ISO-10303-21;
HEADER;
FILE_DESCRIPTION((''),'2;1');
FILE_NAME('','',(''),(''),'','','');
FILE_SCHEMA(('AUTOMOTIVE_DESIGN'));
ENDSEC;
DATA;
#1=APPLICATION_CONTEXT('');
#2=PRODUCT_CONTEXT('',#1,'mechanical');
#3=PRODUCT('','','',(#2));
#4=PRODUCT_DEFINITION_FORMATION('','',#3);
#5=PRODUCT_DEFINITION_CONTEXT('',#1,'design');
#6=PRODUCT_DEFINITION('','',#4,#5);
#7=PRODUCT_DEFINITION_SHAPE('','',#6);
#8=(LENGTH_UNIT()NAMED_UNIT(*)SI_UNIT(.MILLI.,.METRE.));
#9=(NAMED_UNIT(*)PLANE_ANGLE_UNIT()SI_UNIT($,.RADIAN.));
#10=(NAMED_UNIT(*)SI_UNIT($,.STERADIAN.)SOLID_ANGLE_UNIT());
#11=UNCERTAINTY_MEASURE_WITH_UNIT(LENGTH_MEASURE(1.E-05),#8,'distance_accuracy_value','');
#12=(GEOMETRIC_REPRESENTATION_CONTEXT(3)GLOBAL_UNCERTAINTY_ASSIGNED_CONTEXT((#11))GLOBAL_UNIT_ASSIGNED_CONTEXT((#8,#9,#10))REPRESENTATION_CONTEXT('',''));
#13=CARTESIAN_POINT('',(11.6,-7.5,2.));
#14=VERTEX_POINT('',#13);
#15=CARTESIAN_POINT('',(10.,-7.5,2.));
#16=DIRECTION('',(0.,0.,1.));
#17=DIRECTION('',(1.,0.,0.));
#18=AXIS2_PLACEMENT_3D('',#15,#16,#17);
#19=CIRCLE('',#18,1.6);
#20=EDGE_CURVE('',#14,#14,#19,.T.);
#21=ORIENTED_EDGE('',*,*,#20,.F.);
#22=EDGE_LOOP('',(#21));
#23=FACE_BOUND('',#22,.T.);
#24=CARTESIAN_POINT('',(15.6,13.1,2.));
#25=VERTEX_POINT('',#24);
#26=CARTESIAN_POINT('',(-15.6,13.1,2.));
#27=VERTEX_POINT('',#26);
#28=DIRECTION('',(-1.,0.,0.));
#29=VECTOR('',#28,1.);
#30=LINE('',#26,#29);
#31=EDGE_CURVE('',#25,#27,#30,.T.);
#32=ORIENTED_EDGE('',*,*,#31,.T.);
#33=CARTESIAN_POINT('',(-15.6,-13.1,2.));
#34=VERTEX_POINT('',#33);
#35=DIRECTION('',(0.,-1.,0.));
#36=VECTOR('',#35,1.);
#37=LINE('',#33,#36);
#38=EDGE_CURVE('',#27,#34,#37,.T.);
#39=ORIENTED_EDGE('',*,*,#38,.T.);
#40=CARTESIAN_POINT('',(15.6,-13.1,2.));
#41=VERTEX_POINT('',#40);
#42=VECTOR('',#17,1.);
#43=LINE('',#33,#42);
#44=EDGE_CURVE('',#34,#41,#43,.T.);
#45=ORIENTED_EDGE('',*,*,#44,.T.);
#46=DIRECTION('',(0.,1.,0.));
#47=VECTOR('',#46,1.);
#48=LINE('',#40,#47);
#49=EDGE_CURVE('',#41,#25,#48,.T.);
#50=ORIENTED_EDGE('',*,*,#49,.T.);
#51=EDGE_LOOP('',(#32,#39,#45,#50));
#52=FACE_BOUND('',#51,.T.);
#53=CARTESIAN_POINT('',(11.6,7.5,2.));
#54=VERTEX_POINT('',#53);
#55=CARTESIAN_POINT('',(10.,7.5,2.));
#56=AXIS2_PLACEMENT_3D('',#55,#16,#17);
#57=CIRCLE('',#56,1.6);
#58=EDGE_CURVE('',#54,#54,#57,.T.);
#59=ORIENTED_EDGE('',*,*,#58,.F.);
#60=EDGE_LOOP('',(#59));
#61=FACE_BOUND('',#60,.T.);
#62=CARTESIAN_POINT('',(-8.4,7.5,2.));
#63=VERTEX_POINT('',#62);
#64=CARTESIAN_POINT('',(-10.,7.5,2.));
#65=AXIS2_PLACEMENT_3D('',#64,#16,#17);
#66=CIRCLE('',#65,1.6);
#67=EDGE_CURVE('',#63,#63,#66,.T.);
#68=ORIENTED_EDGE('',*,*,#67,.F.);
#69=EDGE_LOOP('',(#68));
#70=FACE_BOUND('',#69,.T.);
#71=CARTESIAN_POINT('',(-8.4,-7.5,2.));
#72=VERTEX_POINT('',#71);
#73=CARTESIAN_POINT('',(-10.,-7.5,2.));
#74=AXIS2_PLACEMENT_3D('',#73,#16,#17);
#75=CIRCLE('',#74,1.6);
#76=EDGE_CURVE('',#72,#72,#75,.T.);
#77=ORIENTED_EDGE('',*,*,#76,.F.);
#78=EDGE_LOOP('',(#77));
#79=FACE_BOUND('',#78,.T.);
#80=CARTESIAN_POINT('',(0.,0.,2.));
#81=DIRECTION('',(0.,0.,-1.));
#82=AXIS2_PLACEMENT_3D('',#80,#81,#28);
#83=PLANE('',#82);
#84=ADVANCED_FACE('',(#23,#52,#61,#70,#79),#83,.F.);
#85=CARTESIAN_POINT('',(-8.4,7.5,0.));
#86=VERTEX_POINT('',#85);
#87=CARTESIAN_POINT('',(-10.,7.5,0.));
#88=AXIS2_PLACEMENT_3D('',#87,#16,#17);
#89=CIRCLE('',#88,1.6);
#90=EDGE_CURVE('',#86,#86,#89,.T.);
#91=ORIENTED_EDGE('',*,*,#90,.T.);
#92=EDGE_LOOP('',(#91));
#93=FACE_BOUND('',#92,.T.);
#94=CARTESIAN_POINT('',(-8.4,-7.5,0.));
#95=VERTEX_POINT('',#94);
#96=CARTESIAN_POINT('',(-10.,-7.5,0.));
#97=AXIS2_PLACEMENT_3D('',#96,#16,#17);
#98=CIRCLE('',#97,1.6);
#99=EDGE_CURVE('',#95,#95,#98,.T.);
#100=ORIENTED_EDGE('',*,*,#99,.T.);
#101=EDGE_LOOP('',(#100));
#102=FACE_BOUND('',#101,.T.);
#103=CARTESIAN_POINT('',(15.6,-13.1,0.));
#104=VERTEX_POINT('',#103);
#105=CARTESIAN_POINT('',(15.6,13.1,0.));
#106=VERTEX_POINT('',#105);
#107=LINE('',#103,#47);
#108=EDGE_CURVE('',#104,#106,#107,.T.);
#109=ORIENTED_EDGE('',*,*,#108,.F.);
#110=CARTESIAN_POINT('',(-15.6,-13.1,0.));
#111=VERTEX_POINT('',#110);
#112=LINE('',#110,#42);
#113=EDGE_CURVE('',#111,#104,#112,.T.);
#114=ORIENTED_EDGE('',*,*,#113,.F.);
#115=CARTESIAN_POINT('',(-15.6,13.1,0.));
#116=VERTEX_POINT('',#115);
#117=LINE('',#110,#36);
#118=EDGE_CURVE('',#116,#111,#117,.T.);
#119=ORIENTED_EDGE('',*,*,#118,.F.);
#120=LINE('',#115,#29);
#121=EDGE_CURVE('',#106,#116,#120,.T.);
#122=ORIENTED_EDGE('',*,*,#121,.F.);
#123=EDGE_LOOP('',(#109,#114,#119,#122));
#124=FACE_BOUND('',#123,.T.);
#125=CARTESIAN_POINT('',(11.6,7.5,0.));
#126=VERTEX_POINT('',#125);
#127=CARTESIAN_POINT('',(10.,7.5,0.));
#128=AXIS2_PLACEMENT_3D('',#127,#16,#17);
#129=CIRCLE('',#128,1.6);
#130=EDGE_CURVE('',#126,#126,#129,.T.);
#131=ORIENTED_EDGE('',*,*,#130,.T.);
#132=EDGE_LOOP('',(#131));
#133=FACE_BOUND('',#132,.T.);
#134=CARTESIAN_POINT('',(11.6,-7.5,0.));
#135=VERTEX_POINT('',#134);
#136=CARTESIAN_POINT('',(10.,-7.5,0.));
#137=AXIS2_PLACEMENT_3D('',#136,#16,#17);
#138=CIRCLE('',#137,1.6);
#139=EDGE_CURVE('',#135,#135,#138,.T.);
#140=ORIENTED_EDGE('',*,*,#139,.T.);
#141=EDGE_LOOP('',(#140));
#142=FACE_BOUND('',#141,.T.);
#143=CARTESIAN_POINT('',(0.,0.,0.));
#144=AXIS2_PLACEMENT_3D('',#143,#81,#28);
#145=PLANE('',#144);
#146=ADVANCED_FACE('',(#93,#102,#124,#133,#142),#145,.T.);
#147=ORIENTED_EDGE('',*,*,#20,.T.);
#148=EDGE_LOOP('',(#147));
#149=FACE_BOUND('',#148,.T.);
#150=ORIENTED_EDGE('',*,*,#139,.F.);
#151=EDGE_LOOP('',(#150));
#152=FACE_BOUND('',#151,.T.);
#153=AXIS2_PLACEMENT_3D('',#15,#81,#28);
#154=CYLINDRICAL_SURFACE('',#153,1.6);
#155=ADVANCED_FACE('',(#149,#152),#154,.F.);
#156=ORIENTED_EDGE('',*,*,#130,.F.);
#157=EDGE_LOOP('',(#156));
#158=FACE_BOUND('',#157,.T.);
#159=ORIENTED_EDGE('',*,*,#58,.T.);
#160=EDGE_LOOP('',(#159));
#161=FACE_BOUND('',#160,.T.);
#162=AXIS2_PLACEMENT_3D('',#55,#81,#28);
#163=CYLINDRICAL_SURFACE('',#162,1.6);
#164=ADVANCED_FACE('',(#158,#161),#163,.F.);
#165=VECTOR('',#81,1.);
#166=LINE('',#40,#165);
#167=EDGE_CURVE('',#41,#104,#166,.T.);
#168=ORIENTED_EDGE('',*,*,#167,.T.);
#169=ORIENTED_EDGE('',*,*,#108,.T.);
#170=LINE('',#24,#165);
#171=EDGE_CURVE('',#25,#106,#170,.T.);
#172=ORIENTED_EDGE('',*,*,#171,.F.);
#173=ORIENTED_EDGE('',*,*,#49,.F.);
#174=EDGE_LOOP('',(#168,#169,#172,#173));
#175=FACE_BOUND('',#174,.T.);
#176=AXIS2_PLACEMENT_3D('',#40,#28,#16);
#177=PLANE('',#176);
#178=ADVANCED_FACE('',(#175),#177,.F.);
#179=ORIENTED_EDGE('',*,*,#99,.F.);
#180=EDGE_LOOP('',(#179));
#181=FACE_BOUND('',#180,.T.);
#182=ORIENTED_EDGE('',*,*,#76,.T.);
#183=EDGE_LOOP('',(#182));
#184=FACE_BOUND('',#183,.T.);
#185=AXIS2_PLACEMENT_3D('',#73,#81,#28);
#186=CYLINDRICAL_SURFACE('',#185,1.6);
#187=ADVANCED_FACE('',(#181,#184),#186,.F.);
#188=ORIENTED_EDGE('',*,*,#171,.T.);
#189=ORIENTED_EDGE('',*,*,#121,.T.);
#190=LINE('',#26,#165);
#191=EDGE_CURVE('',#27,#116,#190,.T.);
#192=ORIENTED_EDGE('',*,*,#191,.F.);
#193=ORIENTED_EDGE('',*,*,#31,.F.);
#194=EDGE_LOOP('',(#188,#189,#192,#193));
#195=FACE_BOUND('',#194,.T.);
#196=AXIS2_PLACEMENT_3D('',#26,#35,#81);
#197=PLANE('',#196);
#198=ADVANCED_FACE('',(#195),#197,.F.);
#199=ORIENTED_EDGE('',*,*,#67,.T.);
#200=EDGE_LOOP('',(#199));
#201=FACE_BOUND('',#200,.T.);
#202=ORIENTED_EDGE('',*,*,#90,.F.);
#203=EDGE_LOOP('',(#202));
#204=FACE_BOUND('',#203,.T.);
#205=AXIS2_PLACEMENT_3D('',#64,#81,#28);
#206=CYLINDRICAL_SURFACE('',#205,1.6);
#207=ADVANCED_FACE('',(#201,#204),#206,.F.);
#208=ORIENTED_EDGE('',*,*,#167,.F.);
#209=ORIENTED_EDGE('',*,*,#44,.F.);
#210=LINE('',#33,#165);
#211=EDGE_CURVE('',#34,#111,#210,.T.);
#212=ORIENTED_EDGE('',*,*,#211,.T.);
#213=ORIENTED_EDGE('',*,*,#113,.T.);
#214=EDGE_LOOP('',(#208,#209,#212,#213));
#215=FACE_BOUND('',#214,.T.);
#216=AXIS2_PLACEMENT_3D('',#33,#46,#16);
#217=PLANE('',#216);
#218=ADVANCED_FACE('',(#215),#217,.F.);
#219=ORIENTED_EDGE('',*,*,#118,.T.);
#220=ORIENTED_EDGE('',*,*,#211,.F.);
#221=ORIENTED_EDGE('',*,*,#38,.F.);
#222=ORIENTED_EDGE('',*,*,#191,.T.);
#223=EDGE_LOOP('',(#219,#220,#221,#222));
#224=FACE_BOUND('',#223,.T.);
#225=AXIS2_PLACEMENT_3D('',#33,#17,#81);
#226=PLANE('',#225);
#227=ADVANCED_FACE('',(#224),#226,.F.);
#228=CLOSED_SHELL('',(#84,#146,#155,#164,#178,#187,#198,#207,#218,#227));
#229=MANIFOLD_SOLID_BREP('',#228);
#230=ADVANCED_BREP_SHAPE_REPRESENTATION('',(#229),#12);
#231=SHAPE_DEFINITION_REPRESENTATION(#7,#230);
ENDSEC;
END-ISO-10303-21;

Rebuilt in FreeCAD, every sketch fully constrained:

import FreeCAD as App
import Part
import Sketcher
from FreeCAD import Vector
Q = App.Units.Quantity

doc = App.newDocument("Part")
params = doc.addObject("Spreadsheet::Sheet", "Params")
for row, (alias, value) in enumerate([
    ("sketch1_diameter", "3.2 mm"),
    ("sketch1_width", "31.2 mm"),
    ("sketch1_height", "26.2 mm"),
    ("pad1_length", "2 mm"),
], start=1):
    params.set(f"A{row}", alias)
    params.set(f"B{row}", "=" + value)
    params.setAlias(f"B{row}", alias)

body = doc.addObject("PartDesign::Body", "Body")

sketch1 = body.newObject("Sketcher::SketchObject", "Sketch")
sketch1.AttachmentSupport = (doc.getObject("XY_Plane"), [""])
sketch1.MapMode = "FlatFace"
sketch1.addGeometry([
    Part.LineSegment(Vector(-15.6, 13.1, 0), Vector(-15.6, -13.1, 0)),
    Part.LineSegment(Vector(-15.6, -13.1, 0), Vector(15.6, -13.1, 0)),
    Part.LineSegment(Vector(15.6, -13.1, 0), Vector(15.6, 13.1, 0)),
    Part.LineSegment(Vector(15.6, 13.1, 0), Vector(-15.6, 13.1, 0)),
    Part.Circle(Vector(-10, -7.5, 0), Vector(0, 0, 1), 1.6),
    Part.Circle(Vector(10, -7.5, 0), Vector(0, 0, 1), 1.6),
    Part.Circle(Vector(-10, 7.5, 0), Vector(0, 0, 1), 1.6),
    Part.Circle(Vector(10, 7.5, 0), Vector(0, 0, 1), 1.6),
], False)
sketch1.addConstraint([
    Sketcher.Constraint("Coincident", 0, 2, 1, 1),
    Sketcher.Constraint("Coincident", 1, 2, 2, 1),
    Sketcher.Constraint("Coincident", 2, 2, 3, 1),
    Sketcher.Constraint("Coincident", 3, 2, 0, 1),
    Sketcher.Constraint("Vertical", 0),
    Sketcher.Constraint("Horizontal", 1),
    Sketcher.Constraint("Vertical", 2),
    Sketcher.Constraint("Horizontal", 3),
    Sketcher.Constraint("Equal", 4, 5),
    Sketcher.Constraint("Equal", 5, 6),
    Sketcher.Constraint("Equal", 6, 7),
    Sketcher.Constraint("Symmetric", 5, 3, 6, 3, -1, 1),
    Sketcher.Constraint("Symmetric", 4, 3, 7, 3, -1, 1),
    Sketcher.Constraint("Symmetric", 0, 2, 2, 2, -1, 1),
    Sketcher.Constraint("Symmetric", 4, 3, 5, 3, -2),
    Sketcher.Constraint("Diameter", 4, Q("3.2 mm")),
    Sketcher.Constraint("DistanceX", 1, 1, 1, 2, Q("31.2 mm")),
    Sketcher.Constraint("DistanceY", 0, 2, 0, 1, Q("26.2 mm")),
    Sketcher.Constraint("DistanceX", 4, 3, -1, 1, Q("10 mm")),
    Sketcher.Constraint("DistanceY", 4, 3, 6, 3, Q("15 mm")),
])
sketch1.setExpression("Constraints[15]", "Params.sketch1_diameter")
sketch1.setExpression("Constraints[16]", "Params.sketch1_width")
sketch1.setExpression("Constraints[17]", "Params.sketch1_height")
pad1 = body.newObject("PartDesign::Pad", "Pad")
pad1.Profile = sketch1
pad1.setExpression("Length", "Params.pad1_length")

doc.recompute()
